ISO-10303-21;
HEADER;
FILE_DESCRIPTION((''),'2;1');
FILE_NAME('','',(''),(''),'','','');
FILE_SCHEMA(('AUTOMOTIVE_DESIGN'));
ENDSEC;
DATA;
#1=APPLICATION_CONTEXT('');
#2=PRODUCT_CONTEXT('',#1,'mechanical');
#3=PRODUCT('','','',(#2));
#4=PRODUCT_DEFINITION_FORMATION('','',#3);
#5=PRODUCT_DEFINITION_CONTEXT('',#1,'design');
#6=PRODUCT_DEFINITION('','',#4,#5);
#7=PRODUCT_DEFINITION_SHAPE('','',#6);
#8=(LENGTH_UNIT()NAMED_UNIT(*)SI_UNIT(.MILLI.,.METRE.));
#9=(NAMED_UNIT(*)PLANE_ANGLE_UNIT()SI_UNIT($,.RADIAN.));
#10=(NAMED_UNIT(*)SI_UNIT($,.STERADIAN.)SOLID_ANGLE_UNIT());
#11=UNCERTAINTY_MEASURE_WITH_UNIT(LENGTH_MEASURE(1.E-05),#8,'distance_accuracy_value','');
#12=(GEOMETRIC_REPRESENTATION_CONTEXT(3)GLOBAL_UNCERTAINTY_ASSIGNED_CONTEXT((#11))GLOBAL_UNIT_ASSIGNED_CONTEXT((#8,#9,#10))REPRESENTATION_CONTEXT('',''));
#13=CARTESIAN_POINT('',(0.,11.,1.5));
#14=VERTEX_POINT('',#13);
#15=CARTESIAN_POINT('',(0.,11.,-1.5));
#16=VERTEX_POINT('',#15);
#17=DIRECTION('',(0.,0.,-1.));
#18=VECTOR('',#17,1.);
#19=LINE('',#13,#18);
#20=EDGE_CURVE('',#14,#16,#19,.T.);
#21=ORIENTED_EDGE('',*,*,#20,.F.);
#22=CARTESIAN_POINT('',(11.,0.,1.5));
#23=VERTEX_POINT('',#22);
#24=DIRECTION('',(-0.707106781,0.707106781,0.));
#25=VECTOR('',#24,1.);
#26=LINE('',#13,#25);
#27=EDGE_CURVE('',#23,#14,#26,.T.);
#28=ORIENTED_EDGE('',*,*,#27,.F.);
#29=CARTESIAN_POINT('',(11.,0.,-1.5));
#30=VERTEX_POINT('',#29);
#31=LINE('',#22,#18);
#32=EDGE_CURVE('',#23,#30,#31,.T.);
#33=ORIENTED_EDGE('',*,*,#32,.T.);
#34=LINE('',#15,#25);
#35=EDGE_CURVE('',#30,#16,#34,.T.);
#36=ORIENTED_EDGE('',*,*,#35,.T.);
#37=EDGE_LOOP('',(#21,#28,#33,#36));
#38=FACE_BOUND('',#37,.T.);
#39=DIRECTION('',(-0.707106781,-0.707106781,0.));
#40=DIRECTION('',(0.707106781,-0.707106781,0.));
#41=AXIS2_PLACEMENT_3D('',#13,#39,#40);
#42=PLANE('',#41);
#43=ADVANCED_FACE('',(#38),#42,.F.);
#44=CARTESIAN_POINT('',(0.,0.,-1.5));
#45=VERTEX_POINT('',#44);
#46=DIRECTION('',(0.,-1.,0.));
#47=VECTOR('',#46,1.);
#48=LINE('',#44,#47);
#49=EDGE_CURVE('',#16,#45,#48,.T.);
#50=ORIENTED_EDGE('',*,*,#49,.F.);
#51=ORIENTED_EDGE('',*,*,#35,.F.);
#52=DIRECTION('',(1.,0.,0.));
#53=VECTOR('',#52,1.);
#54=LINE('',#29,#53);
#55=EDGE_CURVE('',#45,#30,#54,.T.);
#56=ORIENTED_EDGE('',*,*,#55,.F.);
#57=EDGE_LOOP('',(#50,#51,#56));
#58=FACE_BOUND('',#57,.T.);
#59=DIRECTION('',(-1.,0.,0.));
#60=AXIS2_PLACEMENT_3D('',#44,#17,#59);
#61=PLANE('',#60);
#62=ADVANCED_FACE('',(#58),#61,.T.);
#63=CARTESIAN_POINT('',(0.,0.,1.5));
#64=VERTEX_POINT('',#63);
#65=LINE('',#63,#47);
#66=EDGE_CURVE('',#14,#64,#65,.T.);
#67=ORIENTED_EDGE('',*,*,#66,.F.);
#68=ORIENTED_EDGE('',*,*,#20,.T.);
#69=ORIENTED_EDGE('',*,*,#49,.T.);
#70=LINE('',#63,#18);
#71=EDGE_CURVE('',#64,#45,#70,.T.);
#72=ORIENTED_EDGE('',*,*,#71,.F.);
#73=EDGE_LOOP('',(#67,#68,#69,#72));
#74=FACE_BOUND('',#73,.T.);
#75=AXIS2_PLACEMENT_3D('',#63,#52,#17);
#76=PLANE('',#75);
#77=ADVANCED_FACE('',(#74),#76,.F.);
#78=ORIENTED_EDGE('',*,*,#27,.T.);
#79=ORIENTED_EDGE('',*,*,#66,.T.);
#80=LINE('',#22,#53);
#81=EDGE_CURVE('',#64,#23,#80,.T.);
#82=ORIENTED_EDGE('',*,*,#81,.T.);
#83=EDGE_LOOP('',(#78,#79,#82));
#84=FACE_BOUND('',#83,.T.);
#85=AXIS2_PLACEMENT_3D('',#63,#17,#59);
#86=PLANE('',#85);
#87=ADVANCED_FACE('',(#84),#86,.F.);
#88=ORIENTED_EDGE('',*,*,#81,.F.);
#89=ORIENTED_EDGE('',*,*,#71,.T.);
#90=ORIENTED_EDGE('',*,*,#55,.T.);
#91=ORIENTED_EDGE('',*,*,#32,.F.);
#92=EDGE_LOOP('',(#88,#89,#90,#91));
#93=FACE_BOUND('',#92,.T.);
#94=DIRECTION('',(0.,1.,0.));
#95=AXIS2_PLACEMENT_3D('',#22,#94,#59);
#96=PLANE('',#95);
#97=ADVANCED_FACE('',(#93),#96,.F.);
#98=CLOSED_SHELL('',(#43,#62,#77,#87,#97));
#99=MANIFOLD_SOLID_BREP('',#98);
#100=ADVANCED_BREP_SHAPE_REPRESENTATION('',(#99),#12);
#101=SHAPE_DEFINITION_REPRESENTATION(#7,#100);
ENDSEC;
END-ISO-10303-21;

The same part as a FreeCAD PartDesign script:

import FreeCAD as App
import Part
import Sketcher
from FreeCAD import Vector

doc = App.newDocument("Part")
body = doc.addObject("PartDesign::Body", "Body")

# Sketch on XY plane
sketch1 = body.newObject("Sketcher::SketchObject", "Sketch")
sketch1.AttachmentSupport = (doc.getObject("XY_Plane"), [""])
sketch1.MapMode = "FlatFace"
sketch1.addGeometry(Part.LineSegment(Vector(0, 11, 0), Vector(0, 0, 0)), False)
sketch1.addGeometry(Part.LineSegment(Vector(0, 0, 0), Vector(11, 0, 0)), False)
sketch1.addGeometry(Part.LineSegment(Vector(11, 0, 0), Vector(0, 11, 0)), False)
sketch1.addConstraint(Sketcher.Constraint("Coincident", 0, 2, 1, 1))
sketch1.addConstraint(Sketcher.Constraint("Coincident", 1, 2, 2, 1))
sketch1.addConstraint(Sketcher.Constraint("Coincident", 2, 2, 0, 1))
sketch1.addConstraint(Sketcher.Constraint("Vertical", 0))
sketch1.addConstraint(Sketcher.Constraint("Horizontal", 1))
sketch1.addConstraint(Sketcher.Constraint("Coincident", 0, 2, -1, 1))
sketch1.addConstraint(Sketcher.Constraint("Equal", 1, 0))
sketch1.addConstraint(Sketcher.Constraint("DistanceX", 1, 1, 1, 2, 11.0))
pad1 = body.newObject("PartDesign::Pad", "Pad")
pad1.Profile = sketch1
pad1.Length = 3
pad1.Midplane = True

doc.recompute()
